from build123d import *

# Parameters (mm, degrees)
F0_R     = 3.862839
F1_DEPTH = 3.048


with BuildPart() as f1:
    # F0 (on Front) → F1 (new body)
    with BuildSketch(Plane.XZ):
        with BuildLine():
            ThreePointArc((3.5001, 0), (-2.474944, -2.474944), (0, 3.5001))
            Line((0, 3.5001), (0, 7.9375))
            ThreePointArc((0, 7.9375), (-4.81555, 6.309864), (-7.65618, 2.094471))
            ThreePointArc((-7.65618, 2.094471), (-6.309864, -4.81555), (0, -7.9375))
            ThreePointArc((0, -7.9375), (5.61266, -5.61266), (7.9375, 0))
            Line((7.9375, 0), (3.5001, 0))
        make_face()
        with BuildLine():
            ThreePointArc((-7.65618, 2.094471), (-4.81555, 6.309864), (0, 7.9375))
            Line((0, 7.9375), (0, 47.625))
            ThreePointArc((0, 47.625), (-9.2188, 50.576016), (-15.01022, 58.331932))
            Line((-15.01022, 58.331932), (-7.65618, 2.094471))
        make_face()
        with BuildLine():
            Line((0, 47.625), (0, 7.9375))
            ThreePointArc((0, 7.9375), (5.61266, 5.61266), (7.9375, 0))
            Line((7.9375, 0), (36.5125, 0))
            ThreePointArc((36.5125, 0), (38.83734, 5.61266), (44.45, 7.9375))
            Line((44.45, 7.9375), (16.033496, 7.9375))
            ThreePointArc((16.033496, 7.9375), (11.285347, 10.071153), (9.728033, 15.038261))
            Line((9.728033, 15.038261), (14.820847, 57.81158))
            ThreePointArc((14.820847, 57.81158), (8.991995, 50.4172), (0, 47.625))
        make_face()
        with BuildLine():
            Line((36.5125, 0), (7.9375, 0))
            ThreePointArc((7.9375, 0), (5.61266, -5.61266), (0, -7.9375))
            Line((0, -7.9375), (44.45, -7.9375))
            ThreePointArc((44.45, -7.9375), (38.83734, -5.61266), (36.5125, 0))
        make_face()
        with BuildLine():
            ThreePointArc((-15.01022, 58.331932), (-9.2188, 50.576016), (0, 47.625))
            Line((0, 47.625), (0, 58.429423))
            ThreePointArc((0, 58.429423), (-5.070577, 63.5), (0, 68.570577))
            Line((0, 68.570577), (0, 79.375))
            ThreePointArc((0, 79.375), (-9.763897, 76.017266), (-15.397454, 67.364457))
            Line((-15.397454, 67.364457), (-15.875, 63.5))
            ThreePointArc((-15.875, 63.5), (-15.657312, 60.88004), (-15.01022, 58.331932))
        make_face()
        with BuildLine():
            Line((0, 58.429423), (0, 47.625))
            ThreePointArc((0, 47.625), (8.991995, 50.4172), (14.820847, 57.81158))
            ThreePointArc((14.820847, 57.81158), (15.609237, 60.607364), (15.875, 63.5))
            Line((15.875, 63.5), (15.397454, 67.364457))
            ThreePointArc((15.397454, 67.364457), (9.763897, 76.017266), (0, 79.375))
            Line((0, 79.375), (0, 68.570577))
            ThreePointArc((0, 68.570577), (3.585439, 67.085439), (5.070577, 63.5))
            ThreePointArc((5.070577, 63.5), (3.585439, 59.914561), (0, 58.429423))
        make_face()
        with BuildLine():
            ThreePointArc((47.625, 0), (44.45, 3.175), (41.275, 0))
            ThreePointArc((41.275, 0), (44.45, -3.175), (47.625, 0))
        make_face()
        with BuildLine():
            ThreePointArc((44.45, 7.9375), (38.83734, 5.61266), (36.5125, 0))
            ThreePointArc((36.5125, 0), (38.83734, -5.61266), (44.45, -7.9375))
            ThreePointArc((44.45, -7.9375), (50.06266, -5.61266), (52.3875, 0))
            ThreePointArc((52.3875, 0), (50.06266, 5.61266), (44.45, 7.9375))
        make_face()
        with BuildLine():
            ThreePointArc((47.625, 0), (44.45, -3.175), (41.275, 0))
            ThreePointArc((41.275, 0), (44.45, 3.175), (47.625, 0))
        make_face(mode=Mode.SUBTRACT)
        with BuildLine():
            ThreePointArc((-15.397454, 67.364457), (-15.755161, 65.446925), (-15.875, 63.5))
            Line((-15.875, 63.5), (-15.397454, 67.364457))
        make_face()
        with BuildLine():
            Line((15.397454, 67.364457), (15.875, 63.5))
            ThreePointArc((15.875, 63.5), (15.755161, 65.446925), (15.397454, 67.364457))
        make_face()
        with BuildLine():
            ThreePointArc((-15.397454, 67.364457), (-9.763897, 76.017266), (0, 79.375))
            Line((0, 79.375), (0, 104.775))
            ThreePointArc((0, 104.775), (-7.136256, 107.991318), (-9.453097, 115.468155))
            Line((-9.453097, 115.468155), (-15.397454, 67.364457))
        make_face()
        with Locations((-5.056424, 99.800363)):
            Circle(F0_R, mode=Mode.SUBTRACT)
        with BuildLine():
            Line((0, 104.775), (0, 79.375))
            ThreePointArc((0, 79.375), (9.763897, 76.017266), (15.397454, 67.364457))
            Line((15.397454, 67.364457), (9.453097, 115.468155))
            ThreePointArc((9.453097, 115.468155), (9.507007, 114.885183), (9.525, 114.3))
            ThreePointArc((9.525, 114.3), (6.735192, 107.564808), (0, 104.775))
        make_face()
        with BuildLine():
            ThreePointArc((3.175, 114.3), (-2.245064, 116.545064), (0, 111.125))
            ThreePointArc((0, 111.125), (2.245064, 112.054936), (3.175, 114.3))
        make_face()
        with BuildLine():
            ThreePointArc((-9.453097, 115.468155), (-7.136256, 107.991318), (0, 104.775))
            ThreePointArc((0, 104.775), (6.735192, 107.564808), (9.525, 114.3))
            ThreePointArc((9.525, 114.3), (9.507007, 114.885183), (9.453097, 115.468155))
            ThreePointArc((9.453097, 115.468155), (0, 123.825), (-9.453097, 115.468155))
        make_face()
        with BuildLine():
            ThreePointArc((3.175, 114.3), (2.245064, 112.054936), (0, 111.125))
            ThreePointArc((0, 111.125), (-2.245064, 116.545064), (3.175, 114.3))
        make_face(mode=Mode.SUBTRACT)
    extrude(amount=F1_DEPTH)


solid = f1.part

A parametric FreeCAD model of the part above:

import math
import FreeCAD as App
import Part
import Sketcher

V = App.Vector
Q = App.Units.Quantity

doc = App.newDocument("Part")
body = doc.addObject("PartDesign::Body", "Body")

# Sketch on XZ plane
sketch1 = body.newObject("Sketcher::SketchObject", "Sketch")
sketch1.AttachmentSupport = (doc.getObject("XZ_Plane"), [""])
sketch1.MapMode = "FlatFace"
sketch1.addGeometry(Part.ArcOfCircle(Part.Circle(V(0, 0, 0), V(0, 0, 1), 7.9375), math.radians(164.700156), math.radians(270.000001)), False)
sketch1.addGeometry(Part.LineSegment(V(0, -7.9375, 0), V(44.45, -7.9375, 0)), False)
sketch1.addGeometry(Part.ArcOfCircle(Part.Circle(V(44.45, 0, 0), V(0, 0, 1), 7.9375), math.radians(-89.999998), math.radians(-0.000002)), False)
sketch1.addGeometry(Part.ArcOfCircle(Part.Circle(V(44.45, 0, 0), V(0, 0, 1), 7.9375), math.radians(0.000002), math.radians(89.999998)), False)
sketch1.addGeometry(Part.LineSegment(V(44.45, 7.9375, 0), V(16.033496, 7.9375, 0)), False)
sketch1.addGeometry(Part.ArcOfCircle(Part.Circle(V(16.033496, 14.287501, 0), V(0, 0, 1), 6.350001), math.radians(173.210039), math.radians(269.999999)), False)
sketch1.addGeometry(Part.LineSegment(V(9.728033, 15.038261, 0), V(14.820847, 57.81158, 0)), False)
sketch1.addGeometry(Part.ArcOfCircle(Part.Circle(V(-0.000007, 63.500001, 0), V(0, 0, 1), 15.875007), math.radians(-20.9974), math.radians(-0.000004)), False)
sketch1.addGeometry(Part.ArcOfCircle(Part.Circle(V(-0.000026, 63.499996, 0), V(0, 0, 1), 15.875026), math.radians(0.000015), math.radians(14.089084)), False)
sketch1.addGeometry(Part.LineSegment(V(15.397454, 67.364457, 0), V(9.453097, 115.468155, 0)), False)
sketch1.addGeometry(Part.ArcOfCircle(Part.Circle(V(0, 114.3, 0), V(0, 0, 1), 9.525), math.radians(7.044545), math.radians(172.955455)), False)
sketch1.addGeometry(Part.LineSegment(V(-9.453097, 115.468155, 0), V(-15.397454, 67.364457, 0)), False)
sketch1.addGeometry(Part.ArcOfCircle(Part.Circle(V(0.000026, 63.499996, 0), V(0, 0, 1), 15.875026), math.radians(165.910916), math.radians(179.999985)), False)
sketch1.addGeometry(Part.ArcOfCircle(Part.Circle(V(0.000042, 63.500006, 0), V(0, 0, 1), 15.875042), math.radians(-179.999977), math.radians(-161.001274)), False)
sketch1.addGeometry(Part.LineSegment(V(-15.01022, 58.331932, 0), V(-7.65618, 2.094471, 0)), False)
sketch1.addGeometry(Part.ArcOfCircle(Part.Circle(V(0, 0, 0), V(0, 0, 1), 7.9375), math.radians(0.000002), math.radians(89.999998)), False)
sketch1.addGeometry(Part.LineSegment(V(7.9375, 0, 0), V(3.5001, 0, 0)), False)
sketch1.addGeometry(Part.ArcOfCircle(Part.Circle(V(0, 0, 0), V(0, 0, 1), 3.5001), math.radians(90.000004), math.radians(359.999996)), False)
sketch1.addGeometry(Part.LineSegment(V(0, 3.5001, 0), V(0, 7.9375, 0)), False)
sketch1.addGeometry(Part.Circle(V(44.45, 0, 0), V(0, 0, 1), 3.175), False)
sketch1.addGeometry(Part.ArcOfCircle(Part.Circle(V(0, 63.5, 0), V(0, 0, 1), 5.070577), math.radians(90), math.radians(270)), False)
sketch1.addGeometry(Part.ArcOfCircle(Part.Circle(V(-0.000001, 63.499999, 0), V(0, 0, 1), 5.070578), math.radians(0.000015), math.radians(89.999985)), False)
sketch1.addGeometry(Part.ArcOfCircle(Part.Circle(V(-0.000001, 63.500001, 0), V(0, 0, 1), 5.070578), math.radians(-89.999985), math.radians(-0.000015)), False)
sketch1.addGeometry(Part.Circle(V(-5.056424, 99.800363, 0), V(0, 0, 1), 3.862839), False)
sketch1.addGeometry(Part.ArcOfCircle(Part.Circle(V(0, 114.3, 0), V(0, 0, 1), 3.175), math.radians(0), math.radians(270)), False)
sketch1.addGeometry(Part.ArcOfCircle(Part.Circle(V(0, 114.3, 0), V(0, 0, 1), 3.175), math.radians(-89.999998), math.radians(-0.000002)), False)
sketch1.addConstraint(Sketcher.Constraint("Tangent", 0, 2, 1, 1))
sketch1.addConstraint(Sketcher.Constraint("Tangent", 1, 2, 2, 1))
sketch1.addConstraint(Sketcher.Constraint("Tangent", 2, 2, 3, 1))
sketch1.addConstraint(Sketcher.Constraint("Tangent", 3, 2, 4, 1))
sketch1.addConstraint(Sketcher.Constraint("Tangent", 4, 2, 5, 2))
sketch1.addConstraint(Sketcher.Constraint("Tangent", 5, 1, 6, 1))
sketch1.addConstraint(Sketcher.Constraint("Coincident", 6, 2, 7, 1))
sketch1.addConstraint(Sketcher.Constraint("Tangent", 7, 2, 8, 1))
sketch1.addConstraint(Sketcher.Constraint("Coincident", 8, 2, 9, 1))
sketch1.addConstraint(Sketcher.Constraint("Tangent", 9, 2, 10, 1))
sketch1.addConstraint(Sketcher.Constraint("Tangent", 10, 2, 11, 1))
sketch1.addConstraint(Sketcher.Constraint("Coincident", 11, 2, 12, 1))
sketch1.addConstraint(Sketcher.Constraint("Tangent", 12, 2, 13, 1))
sketch1.addConstraint(Sketcher.Constraint("Coincident", 13, 2, 14, 1))
sketch1.addConstraint(Sketcher.Constraint("Coincident", 14, 2, 0, 1))
sketch1.addConstraint(Sketcher.Constraint("Coincident", 15, 1, 16, 1))
sketch1.addConstraint(Sketcher.Constraint("Coincident", 16, 2, 17, 2))
sketch1.addConstraint(Sketcher.Constraint("Coincident", 17, 1, 18, 1))
sketch1.addConstraint(Sketcher.Constraint("Coincident", 18, 2, 15, 2))
sketch1.addConstraint(Sketcher.Constraint("Tangent", 20, 1, 21, 2))
sketch1.addConstraint(Sketcher.Constraint("Tangent", 21, 1, 22, 2))
sketch1.addConstraint(Sketcher.Constraint("Tangent", 22, 1, 20, 2))
sketch1.addConstraint(Sketcher.Constraint("Tangent", 24, 1, 25, 2))
sketch1.addConstraint(Sketcher.Constraint("Coincident", 25, 1, 24, 2))
sketch1.addConstraint(Sketcher.Constraint("Horizontal", 1))
sketch1.addConstraint(Sketcher.Constraint("Horizontal", 4))
sketch1.addConstraint(Sketcher.Constraint("Horizontal", 16))
sketch1.addConstraint(Sketcher.Constraint("Vertical", 18))
sketch1.addConstraint(Sketcher.Constraint("Coincident", 0, 3, -1, 1))
sketch1.addConstraint(Sketcher.Constraint("Coincident", 15, 3, -1, 1))
sketch1.addConstraint(Sketcher.Constraint("Coincident", 17, 3, -1, 1))
sketch1.addConstraint(Sketcher.Constraint("Coincident", 19, 3, 2, 3))
sketch1.addConstraint(Sketcher.Constraint("Coincident", 20, 3, 7, 3))
sketch1.addConstraint(Sketcher.Constraint("Coincident", 24, 3, 10, 3))
sketch1.addConstraint(Sketcher.Constraint("Equal", 0, 2))
sketch1.addConstraint(Sketcher.Constraint("Equal", 2, 3))
sketch1.addConstraint(Sketcher.Constraint("Equal", 8, 12))
sketch1.addConstraint(Sketcher.Constraint("Equal", 3, 15))
sketch1.addConstraint(Sketcher.Constraint("Equal", 19, 24))
sketch1.addConstraint(Sketcher.Constraint("Symmetric", 8, 3, 12, 3, -2))
sketch1.addConstraint(Sketcher.Constraint("Symmetric", 9, 2, 10, 2, -2))
sketch1.addConstraint(Sketcher.Constraint("PointOnObject", 20, 3, -2))
sketch1.addConstraint(Sketcher.Constraint("PointOnObject", 2, 2, -1))
sketch1.addConstraint(Sketcher.Constraint("PointOnObject", 15, 1, -1))
sketch1.addConstraint(Sketcher.Constraint("PointOnObject", 17, 1, -2))
sketch1.addConstraint(Sketcher.Constraint("PointOnObject", 20, 1, -2))
sketch1.addConstraint(Sketcher.Constraint("PointOnObject", 22, 1, -2))
sketch1.addConstraint(Sketcher.Constraint("PointOnObject", 25, 1, -2))
sketch1.addConstraint(Sketcher.Constraint("Horizontal", 22, 3, 7, 2))
sketch1.addConstraint(Sketcher.Constraint("Horizontal", 7, 2, 12, 2))
sketch1.addConstraint(Sketcher.Constraint("Horizontal", 12, 2, 21, 1))
sketch1.addConstraint(Sketcher.Constraint("Horizontal", 25, 3, 24, 1))
sketch1.addConstraint(Sketcher.Constraint("Diameter", 19, Q("0.25 in")))
sketch1.addConstraint(Sketcher.Constraint("Radius", 5, Q("0.25 in")))
sketch1.addConstraint(Sketcher.Constraint("Radius", 0, Q("0.3125 in")))
sketch1.addConstraint(Sketcher.Constraint("Radius", 10, Q("0.375 in")))
sketch1.addConstraint(Sketcher.Constraint("DistanceY", 7, 3, 10, 3, Q("2 in")))
sketch1.addConstraint(Sketcher.Constraint("DistanceX", 1, 1, 1, 2, Q("1.75 in")))
sketch1.addConstraint(Sketcher.Constraint("DistanceY", -1, 1, 7, 3, Q("2.5 in")))
sketch1.addConstraint(Sketcher.Constraint("Radius", 17, Q("3.5001 mm")))
sketch1.addConstraint(Sketcher.Constraint("Diameter", 23, Q("7.725678 mm")))
sketch1.addConstraint(Sketcher.Constraint("DistanceX", -1, 1, 7, 2, Q("0.625 in")))
sketch1.addConstraint(Sketcher.Constraint("Radius", 21, Q("5.070578 mm")))
sketch1.addConstraint(Sketcher.Constraint("Radius", 8, Q("15.875026 mm")))
sketch1.addConstraint(Sketcher.Constraint("Radius", 13, Q("15.875042 mm")))
sketch1.addConstraint(Sketcher.Constraint("Distance", 6, Q("43.07544 mm")))
sketch1.addConstraint(Sketcher.Constraint("Distance", 9, Q("48.46959 mm")))
sketch1.addConstraint(Sketcher.Constraint("Distance", 14, Q("56.716258 mm")))
sketch1.addConstraint(Sketcher.Constraint("DistanceX", 4, 2, 4, 1, Q("28.416504 mm")))
sketch1.addConstraint(Sketcher.Constraint("DistanceX", 13, 2, -1, 1, Q("15.01022 mm")))
sketch1.addConstraint(Sketcher.Constraint("DistanceY", 7, 3, 23, 3, Q("36.300362 mm")))
sketch1.addConstraint(Sketcher.Constraint("DistanceX", 23, 3, 9, 2, Q("14.509521 mm")))
pad1 = body.newObject("PartDesign::Pad", "Pad")
pad1.Profile = sketch1
pad1.Length = Q("0.12 in")

doc.recompute()
